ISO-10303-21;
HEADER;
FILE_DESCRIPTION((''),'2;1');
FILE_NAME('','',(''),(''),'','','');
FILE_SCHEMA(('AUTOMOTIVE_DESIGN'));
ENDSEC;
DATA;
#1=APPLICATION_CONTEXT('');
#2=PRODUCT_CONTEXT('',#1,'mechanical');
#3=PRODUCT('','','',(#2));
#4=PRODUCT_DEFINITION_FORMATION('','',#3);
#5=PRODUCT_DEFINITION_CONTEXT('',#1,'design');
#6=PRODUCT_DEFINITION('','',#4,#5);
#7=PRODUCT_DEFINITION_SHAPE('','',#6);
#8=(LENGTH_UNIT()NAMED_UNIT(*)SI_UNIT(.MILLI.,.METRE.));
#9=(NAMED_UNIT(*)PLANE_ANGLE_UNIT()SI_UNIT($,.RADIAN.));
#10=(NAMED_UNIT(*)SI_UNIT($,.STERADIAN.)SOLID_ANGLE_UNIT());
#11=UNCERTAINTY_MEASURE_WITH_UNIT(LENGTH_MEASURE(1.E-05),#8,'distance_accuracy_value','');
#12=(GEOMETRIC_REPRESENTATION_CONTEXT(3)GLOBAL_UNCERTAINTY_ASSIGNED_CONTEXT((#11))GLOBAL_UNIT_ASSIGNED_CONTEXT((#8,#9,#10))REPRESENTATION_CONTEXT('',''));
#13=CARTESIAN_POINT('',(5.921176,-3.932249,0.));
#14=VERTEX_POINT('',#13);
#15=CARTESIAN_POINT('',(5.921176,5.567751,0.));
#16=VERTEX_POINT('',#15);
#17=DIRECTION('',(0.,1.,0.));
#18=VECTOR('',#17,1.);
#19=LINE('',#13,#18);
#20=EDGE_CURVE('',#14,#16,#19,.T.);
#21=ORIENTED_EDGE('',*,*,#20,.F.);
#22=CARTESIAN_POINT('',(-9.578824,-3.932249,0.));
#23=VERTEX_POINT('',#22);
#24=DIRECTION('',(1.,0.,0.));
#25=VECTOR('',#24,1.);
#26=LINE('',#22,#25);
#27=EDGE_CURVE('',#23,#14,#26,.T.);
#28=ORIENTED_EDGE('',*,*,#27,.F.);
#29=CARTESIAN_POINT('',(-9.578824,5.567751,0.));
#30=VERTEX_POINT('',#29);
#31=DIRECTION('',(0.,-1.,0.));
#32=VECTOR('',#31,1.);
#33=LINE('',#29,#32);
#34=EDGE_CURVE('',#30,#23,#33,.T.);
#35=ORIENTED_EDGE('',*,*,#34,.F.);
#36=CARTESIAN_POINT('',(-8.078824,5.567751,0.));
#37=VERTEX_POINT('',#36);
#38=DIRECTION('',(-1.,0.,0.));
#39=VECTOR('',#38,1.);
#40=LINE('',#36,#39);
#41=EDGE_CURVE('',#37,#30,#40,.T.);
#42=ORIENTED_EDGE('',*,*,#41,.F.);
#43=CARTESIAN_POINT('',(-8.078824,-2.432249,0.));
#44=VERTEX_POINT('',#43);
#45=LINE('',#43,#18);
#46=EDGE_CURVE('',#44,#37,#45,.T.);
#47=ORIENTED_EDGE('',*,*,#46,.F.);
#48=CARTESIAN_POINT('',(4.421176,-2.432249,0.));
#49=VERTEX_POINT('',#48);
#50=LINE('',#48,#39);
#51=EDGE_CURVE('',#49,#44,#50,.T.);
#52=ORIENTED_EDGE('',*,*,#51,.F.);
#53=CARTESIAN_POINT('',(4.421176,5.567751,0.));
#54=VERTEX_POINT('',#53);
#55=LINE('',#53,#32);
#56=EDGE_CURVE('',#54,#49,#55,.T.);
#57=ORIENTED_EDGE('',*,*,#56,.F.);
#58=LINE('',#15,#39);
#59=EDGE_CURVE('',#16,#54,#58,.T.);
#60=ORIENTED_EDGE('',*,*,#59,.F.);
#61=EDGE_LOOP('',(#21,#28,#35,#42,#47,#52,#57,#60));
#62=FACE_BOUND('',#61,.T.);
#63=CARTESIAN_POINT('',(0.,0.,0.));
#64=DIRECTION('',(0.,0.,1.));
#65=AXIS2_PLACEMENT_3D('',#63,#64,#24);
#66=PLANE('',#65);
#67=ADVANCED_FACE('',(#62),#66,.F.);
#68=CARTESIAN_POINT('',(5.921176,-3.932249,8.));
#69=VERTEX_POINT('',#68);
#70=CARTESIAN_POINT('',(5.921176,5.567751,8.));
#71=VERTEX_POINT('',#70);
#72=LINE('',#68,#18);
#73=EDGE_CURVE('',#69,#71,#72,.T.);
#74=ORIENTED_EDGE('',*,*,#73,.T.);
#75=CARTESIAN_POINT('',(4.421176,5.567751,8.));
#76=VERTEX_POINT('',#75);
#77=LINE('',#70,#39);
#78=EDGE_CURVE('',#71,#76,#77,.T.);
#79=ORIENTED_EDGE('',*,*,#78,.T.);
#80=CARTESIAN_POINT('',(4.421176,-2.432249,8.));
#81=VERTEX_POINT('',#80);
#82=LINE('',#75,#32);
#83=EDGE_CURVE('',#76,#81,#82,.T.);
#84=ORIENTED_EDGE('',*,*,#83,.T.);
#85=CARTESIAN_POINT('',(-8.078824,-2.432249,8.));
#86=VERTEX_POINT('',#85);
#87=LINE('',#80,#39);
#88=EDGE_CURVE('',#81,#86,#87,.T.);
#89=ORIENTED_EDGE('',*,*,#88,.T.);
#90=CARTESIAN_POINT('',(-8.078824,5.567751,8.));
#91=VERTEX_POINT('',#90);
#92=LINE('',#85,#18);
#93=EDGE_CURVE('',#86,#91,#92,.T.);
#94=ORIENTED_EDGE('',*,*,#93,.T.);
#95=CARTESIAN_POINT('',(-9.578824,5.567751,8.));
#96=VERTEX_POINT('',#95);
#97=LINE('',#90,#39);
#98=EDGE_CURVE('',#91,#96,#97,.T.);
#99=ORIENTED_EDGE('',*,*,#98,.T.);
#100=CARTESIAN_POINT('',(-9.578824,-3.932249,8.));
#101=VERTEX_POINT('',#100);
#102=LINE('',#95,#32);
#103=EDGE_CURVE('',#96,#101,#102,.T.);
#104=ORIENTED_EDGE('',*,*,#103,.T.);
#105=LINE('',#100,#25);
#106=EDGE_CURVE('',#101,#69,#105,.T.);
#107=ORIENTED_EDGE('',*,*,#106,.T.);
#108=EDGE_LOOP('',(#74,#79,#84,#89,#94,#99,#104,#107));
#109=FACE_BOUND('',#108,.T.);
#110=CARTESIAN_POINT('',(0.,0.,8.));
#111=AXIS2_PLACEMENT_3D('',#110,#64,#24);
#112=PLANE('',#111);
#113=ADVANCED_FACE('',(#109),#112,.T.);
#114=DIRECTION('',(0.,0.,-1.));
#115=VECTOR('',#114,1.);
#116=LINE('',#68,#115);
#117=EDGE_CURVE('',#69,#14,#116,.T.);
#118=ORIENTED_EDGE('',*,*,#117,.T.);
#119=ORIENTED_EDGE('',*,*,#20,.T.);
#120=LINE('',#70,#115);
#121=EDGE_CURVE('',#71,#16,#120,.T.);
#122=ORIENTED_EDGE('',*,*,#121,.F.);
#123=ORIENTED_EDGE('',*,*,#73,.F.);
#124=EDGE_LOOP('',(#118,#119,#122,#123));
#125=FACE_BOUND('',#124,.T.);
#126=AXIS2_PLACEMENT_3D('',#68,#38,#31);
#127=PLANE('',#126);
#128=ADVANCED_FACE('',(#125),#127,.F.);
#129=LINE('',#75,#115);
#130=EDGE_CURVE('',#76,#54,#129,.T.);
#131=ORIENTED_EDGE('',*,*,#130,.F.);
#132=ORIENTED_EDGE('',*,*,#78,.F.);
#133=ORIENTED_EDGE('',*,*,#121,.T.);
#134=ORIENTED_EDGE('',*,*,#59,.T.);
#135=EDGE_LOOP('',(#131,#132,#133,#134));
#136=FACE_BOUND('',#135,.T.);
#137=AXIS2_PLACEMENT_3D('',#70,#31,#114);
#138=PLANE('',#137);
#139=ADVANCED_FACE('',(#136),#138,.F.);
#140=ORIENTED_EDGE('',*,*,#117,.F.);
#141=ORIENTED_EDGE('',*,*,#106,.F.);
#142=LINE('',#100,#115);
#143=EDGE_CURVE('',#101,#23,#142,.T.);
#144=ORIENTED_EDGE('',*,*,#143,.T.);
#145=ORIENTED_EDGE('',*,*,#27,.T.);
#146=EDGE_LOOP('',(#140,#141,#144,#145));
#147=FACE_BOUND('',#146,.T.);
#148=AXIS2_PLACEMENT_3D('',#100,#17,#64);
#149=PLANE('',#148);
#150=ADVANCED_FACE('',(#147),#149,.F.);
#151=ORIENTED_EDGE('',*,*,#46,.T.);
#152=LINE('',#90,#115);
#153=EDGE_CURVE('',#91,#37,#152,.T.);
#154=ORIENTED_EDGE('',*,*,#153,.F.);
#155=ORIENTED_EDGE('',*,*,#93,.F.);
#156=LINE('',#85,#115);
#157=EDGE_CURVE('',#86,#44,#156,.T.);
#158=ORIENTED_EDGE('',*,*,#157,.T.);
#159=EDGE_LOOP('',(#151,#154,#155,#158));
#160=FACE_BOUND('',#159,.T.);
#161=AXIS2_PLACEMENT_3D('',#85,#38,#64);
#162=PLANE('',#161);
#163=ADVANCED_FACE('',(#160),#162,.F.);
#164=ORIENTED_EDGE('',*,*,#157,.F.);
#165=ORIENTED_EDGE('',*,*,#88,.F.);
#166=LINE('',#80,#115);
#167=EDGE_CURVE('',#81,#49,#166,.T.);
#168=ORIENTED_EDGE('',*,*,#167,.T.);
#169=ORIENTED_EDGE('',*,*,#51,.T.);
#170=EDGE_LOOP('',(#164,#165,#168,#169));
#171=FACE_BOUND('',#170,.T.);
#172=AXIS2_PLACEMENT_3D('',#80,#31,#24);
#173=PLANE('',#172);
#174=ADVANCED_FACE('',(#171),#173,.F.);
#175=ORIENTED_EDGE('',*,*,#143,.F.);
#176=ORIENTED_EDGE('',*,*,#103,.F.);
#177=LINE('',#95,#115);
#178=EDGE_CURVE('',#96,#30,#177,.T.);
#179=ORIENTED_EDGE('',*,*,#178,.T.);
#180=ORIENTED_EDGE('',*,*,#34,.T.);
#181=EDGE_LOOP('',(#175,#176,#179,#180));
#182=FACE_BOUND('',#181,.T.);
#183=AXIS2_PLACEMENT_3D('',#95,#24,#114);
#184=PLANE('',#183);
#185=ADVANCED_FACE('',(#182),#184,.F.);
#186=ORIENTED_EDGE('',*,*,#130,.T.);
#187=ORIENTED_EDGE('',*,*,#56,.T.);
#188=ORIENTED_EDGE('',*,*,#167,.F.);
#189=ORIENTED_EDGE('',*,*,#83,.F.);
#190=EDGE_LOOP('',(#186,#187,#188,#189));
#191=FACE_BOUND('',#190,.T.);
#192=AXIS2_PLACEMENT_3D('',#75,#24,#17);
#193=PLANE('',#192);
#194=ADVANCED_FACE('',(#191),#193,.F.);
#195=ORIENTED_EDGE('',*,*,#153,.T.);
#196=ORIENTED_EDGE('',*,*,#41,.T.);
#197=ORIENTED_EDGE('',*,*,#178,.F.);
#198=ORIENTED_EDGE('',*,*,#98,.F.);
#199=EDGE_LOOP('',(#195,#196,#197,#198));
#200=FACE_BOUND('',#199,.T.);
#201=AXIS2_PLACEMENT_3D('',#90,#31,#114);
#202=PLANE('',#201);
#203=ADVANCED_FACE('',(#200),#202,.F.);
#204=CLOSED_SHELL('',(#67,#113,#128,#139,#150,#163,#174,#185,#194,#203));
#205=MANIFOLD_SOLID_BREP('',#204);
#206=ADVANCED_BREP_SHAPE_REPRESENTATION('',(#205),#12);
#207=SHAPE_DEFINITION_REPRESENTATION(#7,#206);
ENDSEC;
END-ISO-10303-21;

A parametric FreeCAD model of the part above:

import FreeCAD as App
import Part
import Sketcher


def add_polygon(sketch, points):
    """Adds a closed chain of lines whose ends are joined by coincident constraints."""
    first, n = sketch.GeometryCount, len(points)
    for a, b in zip(points, points[1:] + points[:1]):
        sketch.addGeometry(Part.LineSegment(App.Vector(*a, 0), App.Vector(*b, 0)), False)
    for i in range(n):
        sketch.addConstraint(Sketcher.Constraint("Coincident", first + i, 2, first + (i + 1) % n, 1))

doc = App.newDocument("Part")
body = doc.addObject("PartDesign::Body", "Body")

sketch1 = doc.addObject("Sketcher::SketchObject", "Sketch")
body.addObject(sketch1)
sketch1.AttachmentSupport = (doc.XY_Plane, [""])
sketch1.MapMode = "FlatFace"
add_polygon(sketch1, [(-9.6, 5.6), (-9.6, -3.9), (5.9, -3.9), (5.9, 5.6), (4.4, 5.6), (4.4, -2.4), (-8.1, -2.4), (-8.1, 5.6)])
sketch1.addConstraint([
    Sketcher.Constraint("Vertical", 0),
    Sketcher.Constraint("Horizontal", 1),
    Sketcher.Constraint("Vertical", 2),
    Sketcher.Constraint("Horizontal", 3),
    Sketcher.Constraint("Vertical", 4),
    Sketcher.Constraint("Horizontal", 5),
    Sketcher.Constraint("Vertical", 6),
    Sketcher.Constraint("Horizontal", 7),
    Sketcher.Constraint("Horizontal", 3, 2, 6, 2),
    Sketcher.Constraint("Equal", 3, 7),
    Sketcher.Constraint("DistanceY", 4, 2, 4, 1, 8.0),
    Sketcher.Constraint("DistanceX", 1, 1, 1, 2, 15.5),
    Sketcher.Constraint("DistanceX", 3, 2, 3, 1, 1.5),
    Sketcher.Constraint("DistanceY", 0, 2, 0, 1, 9.5),
    Sketcher.Constraint("DistanceY", 0, 2, -1, 1, 3.932249),
    Sketcher.Constraint("DistanceX", 0, 2, -1, 1, 9.578824),
])
pad1 = doc.addObject("PartDesign::Pad", "Pad")
body.addObject(pad1)
pad1.Profile = sketch1
pad1.Length = 8

doc.recompute()
